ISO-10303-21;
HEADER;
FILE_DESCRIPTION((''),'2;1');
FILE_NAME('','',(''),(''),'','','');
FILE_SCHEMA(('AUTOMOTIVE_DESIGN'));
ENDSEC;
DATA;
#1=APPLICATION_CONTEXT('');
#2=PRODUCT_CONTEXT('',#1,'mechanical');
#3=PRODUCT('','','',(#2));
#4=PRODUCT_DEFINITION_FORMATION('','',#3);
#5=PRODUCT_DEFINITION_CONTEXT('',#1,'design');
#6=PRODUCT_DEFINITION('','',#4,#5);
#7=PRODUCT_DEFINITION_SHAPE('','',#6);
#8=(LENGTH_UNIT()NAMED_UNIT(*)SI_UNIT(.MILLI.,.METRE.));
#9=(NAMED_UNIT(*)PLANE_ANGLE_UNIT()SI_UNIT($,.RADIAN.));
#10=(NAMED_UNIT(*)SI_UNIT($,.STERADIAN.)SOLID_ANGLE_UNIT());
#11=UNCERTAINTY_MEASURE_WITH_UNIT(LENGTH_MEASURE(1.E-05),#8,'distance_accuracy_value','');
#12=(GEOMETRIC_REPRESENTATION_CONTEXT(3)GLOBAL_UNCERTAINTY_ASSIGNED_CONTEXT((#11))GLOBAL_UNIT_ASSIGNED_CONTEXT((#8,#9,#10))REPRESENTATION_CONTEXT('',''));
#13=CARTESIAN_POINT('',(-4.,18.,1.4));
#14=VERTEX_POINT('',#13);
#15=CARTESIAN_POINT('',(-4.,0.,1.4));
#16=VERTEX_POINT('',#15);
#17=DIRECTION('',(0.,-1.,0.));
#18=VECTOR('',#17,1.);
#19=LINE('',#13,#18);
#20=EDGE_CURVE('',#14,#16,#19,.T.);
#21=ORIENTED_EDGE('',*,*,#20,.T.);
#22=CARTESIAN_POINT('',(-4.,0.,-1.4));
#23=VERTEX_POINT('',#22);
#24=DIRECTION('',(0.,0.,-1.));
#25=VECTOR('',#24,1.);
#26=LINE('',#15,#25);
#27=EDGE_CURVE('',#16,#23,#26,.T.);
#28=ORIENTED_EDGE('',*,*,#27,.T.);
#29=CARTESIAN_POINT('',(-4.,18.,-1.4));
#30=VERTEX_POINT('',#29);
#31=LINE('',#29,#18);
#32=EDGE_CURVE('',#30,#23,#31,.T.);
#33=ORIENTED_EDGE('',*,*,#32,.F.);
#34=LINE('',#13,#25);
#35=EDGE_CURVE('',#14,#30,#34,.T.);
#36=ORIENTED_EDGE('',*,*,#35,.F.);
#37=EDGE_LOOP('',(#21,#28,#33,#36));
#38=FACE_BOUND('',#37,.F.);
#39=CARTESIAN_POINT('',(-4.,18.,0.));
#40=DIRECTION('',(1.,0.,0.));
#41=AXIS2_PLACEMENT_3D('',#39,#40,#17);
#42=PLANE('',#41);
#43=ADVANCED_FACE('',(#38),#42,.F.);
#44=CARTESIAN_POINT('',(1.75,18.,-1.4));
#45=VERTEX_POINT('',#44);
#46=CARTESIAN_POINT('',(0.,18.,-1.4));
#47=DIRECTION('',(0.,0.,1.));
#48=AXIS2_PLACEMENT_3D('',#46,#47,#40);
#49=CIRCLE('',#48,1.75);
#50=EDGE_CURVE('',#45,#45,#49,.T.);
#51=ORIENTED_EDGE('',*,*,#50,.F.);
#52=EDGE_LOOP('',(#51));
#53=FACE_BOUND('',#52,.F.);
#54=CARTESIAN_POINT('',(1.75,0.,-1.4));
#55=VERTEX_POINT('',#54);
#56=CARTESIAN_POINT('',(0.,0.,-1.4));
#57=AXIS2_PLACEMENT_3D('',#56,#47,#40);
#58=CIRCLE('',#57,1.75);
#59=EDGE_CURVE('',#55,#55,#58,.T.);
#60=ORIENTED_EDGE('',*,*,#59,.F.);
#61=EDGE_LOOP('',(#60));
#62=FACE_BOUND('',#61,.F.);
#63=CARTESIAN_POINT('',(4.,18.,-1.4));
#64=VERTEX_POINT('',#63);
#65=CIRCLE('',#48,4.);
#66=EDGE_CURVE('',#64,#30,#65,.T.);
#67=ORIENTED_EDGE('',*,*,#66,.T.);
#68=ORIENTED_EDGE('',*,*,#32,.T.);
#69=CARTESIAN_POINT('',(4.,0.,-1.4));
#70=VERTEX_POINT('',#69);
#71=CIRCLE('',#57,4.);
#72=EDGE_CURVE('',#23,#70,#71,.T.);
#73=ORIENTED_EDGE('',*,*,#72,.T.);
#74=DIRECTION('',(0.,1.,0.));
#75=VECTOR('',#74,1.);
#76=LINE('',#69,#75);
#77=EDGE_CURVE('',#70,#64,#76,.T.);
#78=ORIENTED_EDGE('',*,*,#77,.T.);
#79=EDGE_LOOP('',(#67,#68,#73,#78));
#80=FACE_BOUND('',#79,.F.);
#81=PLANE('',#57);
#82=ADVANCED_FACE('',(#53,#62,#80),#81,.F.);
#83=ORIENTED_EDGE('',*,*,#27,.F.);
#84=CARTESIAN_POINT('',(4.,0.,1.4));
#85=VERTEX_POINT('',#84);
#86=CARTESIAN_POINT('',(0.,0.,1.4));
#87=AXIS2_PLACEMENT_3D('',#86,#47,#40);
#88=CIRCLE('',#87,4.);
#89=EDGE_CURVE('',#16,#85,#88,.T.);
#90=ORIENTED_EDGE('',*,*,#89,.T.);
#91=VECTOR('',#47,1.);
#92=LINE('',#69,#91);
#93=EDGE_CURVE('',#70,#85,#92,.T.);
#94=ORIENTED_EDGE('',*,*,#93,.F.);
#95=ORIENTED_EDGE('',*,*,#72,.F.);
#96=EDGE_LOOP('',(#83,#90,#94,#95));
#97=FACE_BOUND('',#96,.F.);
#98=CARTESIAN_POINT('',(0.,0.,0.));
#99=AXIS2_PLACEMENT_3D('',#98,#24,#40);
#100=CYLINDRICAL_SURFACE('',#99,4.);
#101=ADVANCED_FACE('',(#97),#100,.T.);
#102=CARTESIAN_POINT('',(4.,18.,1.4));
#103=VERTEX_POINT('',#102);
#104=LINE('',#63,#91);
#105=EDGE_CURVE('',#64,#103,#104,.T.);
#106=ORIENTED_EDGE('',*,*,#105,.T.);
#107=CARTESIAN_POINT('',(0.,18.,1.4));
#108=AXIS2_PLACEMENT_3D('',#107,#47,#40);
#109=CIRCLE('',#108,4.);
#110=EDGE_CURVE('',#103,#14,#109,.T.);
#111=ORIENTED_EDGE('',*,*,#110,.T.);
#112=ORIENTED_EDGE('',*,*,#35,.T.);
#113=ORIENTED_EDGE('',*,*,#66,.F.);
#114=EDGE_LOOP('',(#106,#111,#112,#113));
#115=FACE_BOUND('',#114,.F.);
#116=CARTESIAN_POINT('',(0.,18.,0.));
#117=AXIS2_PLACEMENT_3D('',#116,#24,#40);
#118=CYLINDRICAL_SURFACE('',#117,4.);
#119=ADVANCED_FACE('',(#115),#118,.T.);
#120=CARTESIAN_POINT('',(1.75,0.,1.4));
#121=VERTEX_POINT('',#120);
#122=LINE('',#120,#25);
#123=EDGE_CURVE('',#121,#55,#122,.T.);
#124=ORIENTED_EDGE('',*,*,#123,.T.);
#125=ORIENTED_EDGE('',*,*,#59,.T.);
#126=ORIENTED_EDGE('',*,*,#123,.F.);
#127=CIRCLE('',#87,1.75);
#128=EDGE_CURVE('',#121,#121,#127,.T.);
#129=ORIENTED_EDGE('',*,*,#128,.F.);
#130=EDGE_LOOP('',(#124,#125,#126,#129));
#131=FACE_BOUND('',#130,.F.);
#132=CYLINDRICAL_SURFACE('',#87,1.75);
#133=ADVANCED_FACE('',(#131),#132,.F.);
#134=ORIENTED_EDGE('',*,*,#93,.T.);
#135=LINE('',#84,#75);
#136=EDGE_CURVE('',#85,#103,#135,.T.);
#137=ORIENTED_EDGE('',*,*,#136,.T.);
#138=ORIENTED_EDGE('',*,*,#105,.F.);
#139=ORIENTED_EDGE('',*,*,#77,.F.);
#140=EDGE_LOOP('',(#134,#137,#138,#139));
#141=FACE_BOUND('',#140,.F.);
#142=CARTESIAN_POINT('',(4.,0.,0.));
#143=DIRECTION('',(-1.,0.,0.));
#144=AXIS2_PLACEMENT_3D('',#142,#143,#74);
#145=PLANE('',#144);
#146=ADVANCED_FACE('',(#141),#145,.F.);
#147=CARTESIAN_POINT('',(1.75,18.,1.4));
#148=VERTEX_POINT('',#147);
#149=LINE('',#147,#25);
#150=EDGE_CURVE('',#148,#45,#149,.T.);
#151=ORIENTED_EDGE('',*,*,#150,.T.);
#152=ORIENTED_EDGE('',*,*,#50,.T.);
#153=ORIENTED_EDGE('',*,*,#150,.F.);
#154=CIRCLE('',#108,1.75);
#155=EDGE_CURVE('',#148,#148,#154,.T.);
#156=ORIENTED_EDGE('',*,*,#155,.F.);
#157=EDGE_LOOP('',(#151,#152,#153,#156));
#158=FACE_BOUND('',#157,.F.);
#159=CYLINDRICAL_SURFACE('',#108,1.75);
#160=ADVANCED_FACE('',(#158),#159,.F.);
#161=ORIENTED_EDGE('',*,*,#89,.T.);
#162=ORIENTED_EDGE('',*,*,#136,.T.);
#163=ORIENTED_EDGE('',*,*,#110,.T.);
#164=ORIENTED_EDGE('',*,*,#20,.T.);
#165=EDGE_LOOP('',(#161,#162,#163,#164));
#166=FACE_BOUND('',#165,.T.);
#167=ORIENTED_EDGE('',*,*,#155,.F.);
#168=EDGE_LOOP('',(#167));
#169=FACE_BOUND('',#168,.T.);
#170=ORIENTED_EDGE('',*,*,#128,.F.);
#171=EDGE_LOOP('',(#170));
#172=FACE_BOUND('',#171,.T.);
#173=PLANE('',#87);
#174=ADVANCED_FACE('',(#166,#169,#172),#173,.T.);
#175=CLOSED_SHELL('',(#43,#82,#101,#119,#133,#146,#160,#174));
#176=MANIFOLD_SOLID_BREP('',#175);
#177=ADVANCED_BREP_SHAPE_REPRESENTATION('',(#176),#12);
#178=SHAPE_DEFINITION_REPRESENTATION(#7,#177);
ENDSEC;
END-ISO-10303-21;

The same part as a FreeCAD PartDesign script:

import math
import FreeCAD as App
import Part
import Sketcher
from FreeCAD import Vector

doc = App.newDocument("Part")
body = doc.addObject("PartDesign::Body", "Body")

# Sketch on XY plane
sketch1 = doc.addObject("Sketcher::SketchObject", "Sketch")
body.addObject(sketch1)
sketch1.AttachmentSupport = (doc.XY_Plane, [""])
sketch1.MapMode = "FlatFace"
sketch1.addGeometry(Part.ArcOfCircle(Part.Circle(Vector(0, 0, 0), Vector(0, 0, 1), 4), math.radians(180), math.radians(360)), False)
sketch1.addGeometry(Part.LineSegment(Vector(4, 0, 0), Vector(4, 18, 0)), False)
sketch1.addGeometry(Part.ArcOfCircle(Part.Circle(Vector(0, 18, 0), Vector(0, 0, 1), 4), math.radians(0), math.radians(180)), False)
sketch1.addGeometry(Part.LineSegment(Vector(-4, 18, 0), Vector(-4, 0, 0)), False)
sketch1.addConstraint(Sketcher.Constraint("Tangent", 0, 2, 1, 1))
sketch1.addConstraint(Sketcher.Constraint("Tangent", 1, 2, 2, 1))
sketch1.addConstraint(Sketcher.Constraint("Tangent", 2, 2, 3, 1))
sketch1.addConstraint(Sketcher.Constraint("Tangent", 3, 2, 0, 1))
sketch1.addConstraint(Sketcher.Constraint("Vertical", 1))
sketch1.addConstraint(Sketcher.Constraint("Vertical", 3))
sketch1.addConstraint(Sketcher.Constraint("Coincident", 0, 3, -1, 1))
sketch1.addConstraint(Sketcher.Constraint("Radius", 0, 4.0))
sketch1.addConstraint(Sketcher.Constraint("DistanceY", 1, 1, 1, 2, 18.0))
pad1 = doc.addObject("PartDesign::Pad", "Pad")
body.addObject(pad1)
pad1.Profile = sketch1
pad1.Length = 2.8
pad1.Midplane = True

# Sketch on XY plane
sketch2 = doc.addObject("Sketcher::SketchObject", "Sketch001")
body.addObject(sketch2)
sketch2.AttachmentSupport = (doc.XY_Plane, [""])
sketch2.MapMode = "FlatFace"
sketch2.AttachmentOffset = App.Placement(Vector(0, 0, 1.4), App.Rotation())
sketch2.addGeometry(Part.Circle(Vector(0, 0, 0), Vector(0, 0, 1), 1.8), False)
sketch2.addGeometry(Part.Circle(Vector(0, 18, 0), Vector(0, 0, 1), 1.8), False)
sketch2.addConstraint(Sketcher.Constraint("Coincident", 0, 3, -1, 1))
sketch2.addConstraint(Sketcher.Constraint("Equal", 0, 1))
sketch2.addConstraint(Sketcher.Constraint("PointOnObject", 1, 3, -2))
sketch2.addConstraint(Sketcher.Constraint("Diameter", 0, 3.5))
sketch2.addConstraint(Sketcher.Constraint("DistanceY", -1, 1, 1, 3, 18.0))
pocket1 = doc.addObject("PartDesign::Pocket", "Pocket")
body.addObject(pocket1)
pocket1.Profile = sketch2
pocket1.Type = "ThroughAll"

doc.recompute()
